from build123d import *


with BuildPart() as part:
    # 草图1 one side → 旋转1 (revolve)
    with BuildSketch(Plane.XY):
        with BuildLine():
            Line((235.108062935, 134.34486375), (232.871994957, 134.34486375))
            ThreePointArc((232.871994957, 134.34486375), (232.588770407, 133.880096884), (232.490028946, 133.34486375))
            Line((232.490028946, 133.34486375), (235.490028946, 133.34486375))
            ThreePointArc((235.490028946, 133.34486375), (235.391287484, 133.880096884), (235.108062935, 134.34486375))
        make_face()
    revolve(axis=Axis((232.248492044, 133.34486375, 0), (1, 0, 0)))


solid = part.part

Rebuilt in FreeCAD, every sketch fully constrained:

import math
import FreeCAD as App
import Part
import Sketcher
from FreeCAD import Vector
Q = App.Units.Quantity

doc = App.newDocument("Part")
body = doc.addObject("PartDesign::Body", "Body")

# Sketch on XY plane
sketch1 = doc.addObject("Sketcher::SketchObject", "Sketch")
body.addObject(sketch1)
sketch1.AttachmentSupport = (doc.XY_Plane, [""])
sketch1.MapMode = "FlatFace"
sketch1.addGeometry(Part.LineSegment(Vector(235.108063, 134.344864, 0), Vector(232.871995, 134.344864, 0)), False)
sketch1.addGeometry(Part.ArcOfCircle(Part.Circle(Vector(233.990029, 133.344864, 0), Vector(0, 0, 1), 1.5), math.radians(138.189685), math.radians(180)), False)
sketch1.addGeometry(Part.LineSegment(Vector(232.490029, 133.344864, 0), Vector(235.490029, 133.344864, 0)), False)
sketch1.addGeometry(Part.ArcOfCircle(Part.Circle(Vector(233.990029, 133.344864, 0), Vector(0, 0, 1), 1.5), math.radians(0), math.radians(41.810315)), False)
sketch1.addGeometry(Part.LineSegment(Vector(232.490029, 133.344864, 0), Vector(235.490029, 133.344864, 0)), True)  # axis
sketch1.addConstraint(Sketcher.Constraint("Coincident", 0, 2, 1, 1))
sketch1.addConstraint(Sketcher.Constraint("Coincident", 1, 2, 2, 1))
sketch1.addConstraint(Sketcher.Constraint("Coincident", 2, 2, 3, 1))
sketch1.addConstraint(Sketcher.Constraint("Coincident", 3, 2, 0, 1))
sketch1.addConstraint(Sketcher.Constraint("Horizontal", 0))
sketch1.addConstraint(Sketcher.Constraint("Horizontal", 2))
sketch1.addConstraint(Sketcher.Constraint("Horizontal", 4))
sketch1.addConstraint(Sketcher.Constraint("Coincident", 3, 3, 1, 3))
sketch1.addConstraint(Sketcher.Constraint("Coincident", 4, 1, 1, 2))
sketch1.addConstraint(Sketcher.Constraint("Equal", 1, 3))
sketch1.addConstraint(Sketcher.Constraint("Horizontal", 3, 3, 1, 2))
sketch1.addConstraint(Sketcher.Constraint("Equal", 2, 4))
sketch1.addConstraint(Sketcher.Constraint("Radius", 1, Q("1.5 mm")))
sketch1.addConstraint(Sketcher.Constraint("DistanceY", 3, 3, 0, 2, Q("1 mm")))
sketch1.addConstraint(Sketcher.Constraint("DistanceX", -1, 1, 1, 3, Q("233.990029 mm")))
sketch1.addConstraint(Sketcher.Constraint("DistanceY", -1, 1, 1, 3, Q("133.344864 mm")))
revolution = doc.addObject("PartDesign::Revolution", "Revolution")
body.addObject(revolution)
revolution.Profile = sketch1
revolution.ReferenceAxis = (sketch1, ["Axis0"])
revolution.Angle = 360

doc.recompute()
